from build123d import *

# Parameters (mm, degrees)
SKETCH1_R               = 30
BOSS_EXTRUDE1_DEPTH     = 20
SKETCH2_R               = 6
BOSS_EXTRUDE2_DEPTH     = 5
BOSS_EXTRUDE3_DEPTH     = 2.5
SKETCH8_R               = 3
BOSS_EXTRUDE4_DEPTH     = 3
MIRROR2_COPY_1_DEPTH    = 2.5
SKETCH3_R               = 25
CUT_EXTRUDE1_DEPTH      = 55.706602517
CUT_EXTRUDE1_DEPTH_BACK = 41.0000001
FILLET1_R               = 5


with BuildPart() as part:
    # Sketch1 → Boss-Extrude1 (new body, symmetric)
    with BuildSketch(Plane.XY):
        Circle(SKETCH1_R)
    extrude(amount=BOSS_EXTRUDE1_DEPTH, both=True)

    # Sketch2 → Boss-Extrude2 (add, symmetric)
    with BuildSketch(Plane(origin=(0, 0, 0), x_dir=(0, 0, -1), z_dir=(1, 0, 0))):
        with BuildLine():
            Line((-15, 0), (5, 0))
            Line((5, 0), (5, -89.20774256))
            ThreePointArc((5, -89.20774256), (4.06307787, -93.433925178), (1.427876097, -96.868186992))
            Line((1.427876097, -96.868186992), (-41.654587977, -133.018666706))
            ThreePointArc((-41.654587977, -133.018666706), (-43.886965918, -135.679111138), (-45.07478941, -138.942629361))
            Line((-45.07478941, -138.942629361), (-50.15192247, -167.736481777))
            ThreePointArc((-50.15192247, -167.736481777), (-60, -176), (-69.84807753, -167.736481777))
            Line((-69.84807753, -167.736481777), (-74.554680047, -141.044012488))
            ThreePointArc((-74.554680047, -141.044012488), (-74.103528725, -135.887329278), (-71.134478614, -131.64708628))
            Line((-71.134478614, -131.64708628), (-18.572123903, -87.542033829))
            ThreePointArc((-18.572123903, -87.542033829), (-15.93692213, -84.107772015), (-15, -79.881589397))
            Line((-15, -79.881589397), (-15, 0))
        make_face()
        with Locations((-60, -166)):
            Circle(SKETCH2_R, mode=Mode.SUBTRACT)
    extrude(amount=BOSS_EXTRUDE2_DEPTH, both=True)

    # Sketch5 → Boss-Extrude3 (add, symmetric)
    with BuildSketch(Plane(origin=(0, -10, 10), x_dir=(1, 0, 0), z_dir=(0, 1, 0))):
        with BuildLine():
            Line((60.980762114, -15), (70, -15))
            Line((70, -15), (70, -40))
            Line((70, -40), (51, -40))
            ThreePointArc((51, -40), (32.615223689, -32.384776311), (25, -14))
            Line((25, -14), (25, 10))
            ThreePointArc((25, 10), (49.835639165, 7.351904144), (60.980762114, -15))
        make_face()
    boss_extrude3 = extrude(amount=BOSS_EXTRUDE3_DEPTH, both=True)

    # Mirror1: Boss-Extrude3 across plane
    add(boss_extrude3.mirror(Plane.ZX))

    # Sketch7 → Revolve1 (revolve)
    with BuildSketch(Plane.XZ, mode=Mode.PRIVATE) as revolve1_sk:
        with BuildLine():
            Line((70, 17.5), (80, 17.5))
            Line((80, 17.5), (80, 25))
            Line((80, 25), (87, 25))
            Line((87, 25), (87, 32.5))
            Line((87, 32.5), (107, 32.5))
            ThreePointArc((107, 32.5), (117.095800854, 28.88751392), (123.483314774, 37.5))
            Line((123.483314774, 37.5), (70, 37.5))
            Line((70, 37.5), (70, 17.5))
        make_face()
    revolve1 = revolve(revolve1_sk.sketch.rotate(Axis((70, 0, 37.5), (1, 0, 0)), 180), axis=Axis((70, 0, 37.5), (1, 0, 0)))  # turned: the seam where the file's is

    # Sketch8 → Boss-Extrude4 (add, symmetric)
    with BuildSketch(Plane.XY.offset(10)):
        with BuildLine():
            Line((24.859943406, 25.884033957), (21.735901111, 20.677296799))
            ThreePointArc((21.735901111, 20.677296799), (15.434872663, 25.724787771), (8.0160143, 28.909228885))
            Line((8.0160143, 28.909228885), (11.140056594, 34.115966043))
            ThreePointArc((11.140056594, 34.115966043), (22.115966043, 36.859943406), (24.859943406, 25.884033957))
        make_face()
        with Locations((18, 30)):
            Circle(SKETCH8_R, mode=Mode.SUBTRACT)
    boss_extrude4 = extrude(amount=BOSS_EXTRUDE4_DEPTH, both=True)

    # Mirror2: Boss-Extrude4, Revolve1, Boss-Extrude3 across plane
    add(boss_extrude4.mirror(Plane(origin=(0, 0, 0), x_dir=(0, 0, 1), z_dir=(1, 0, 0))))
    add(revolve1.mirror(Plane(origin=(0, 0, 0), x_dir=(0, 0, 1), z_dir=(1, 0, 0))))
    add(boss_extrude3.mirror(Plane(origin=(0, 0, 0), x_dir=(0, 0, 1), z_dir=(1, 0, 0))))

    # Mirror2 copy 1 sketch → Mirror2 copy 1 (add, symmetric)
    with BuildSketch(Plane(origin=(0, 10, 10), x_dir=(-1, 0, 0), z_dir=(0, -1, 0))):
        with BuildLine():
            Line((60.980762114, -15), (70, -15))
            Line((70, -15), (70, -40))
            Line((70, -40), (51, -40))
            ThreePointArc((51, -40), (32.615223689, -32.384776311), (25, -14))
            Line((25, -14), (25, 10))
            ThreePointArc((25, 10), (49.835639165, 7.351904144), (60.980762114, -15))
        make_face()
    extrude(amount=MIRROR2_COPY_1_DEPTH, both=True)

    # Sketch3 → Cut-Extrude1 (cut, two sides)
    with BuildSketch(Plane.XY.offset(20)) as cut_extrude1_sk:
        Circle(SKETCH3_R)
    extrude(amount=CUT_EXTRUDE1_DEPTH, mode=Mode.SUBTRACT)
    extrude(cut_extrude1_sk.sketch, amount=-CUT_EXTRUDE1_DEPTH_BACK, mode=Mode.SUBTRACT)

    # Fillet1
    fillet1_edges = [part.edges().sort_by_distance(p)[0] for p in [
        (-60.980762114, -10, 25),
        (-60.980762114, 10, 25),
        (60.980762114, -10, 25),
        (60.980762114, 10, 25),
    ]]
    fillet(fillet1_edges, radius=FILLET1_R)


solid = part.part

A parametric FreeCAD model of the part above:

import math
import FreeCAD as App
import Part
import Sketcher
from FreeCAD import Vector
Q = App.Units.Quantity


def edges_at(feature, points):
    """Names of the edges that pass closest to the given points."""
    edges = feature.Shape.Edges
    near = lambda p: min(range(len(edges)), key=lambda i: edges[i].distToShape(Part.Vertex(*p))[0])
    return sorted({f"Edge{near(p) + 1}" for p in points})

doc = App.newDocument("Part")
body = doc.addObject("PartDesign::Body", "Body")

sketch1 = body.newObject("Sketcher::SketchObject", "Sketch")
sketch1.AttachmentSupport = (doc.getObject("XY_Plane"), [""])
sketch1.MapMode = "FlatFace"
sketch1.addGeometry(Part.Circle(Vector(0, 0, 0), Vector(0, 0, 1), 30), False)
sketch1.addConstraint(Sketcher.Constraint("Coincident", 0, 3, -1, 1))
sketch1.addConstraint(Sketcher.Constraint("Diameter", 0, Q("60 mm")))
pad1 = body.newObject("PartDesign::Pad", "Pad")
pad1.Profile = sketch1
pad1.Length = 40
pad1.Midplane = True

sketch2 = body.newObject("Sketcher::SketchObject", "Sketch001")
sketch2.AttachmentSupport = (doc.getObject("YZ_Plane"), [""])
sketch2.MapMode = "FlatFace"
sketch2.addGeometry(Part.LineSegment(Vector(0, -5, 0), Vector(0, 15, 0)), False)
sketch2.addGeometry(Part.LineSegment(Vector(0, 15, 0), Vector(-80, 15, 0)), False)
sketch2.addGeometry(Part.ArcOfCircle(Part.Circle(Vector(-80, 25, 0), Vector(0, 0, 1), 10), math.radians(-140), math.radians(-90)), False)
sketch2.addGeometry(Part.LineSegment(Vector(-88, 19, 0), Vector(-132, 71, 0)), False)
sketch2.addGeometry(Part.ArcOfCircle(Part.Circle(Vector(-139, 65, 0), Vector(0, 0, 1), 10), math.radians(40), math.radians(100)), False)
sketch2.addGeometry(Part.LineSegment(Vector(-141, 75, 0), Vector(-168, 70, 0)), False)
sketch2.addGeometry(Part.ArcOfCircle(Part.Circle(Vector(-166, 60, 0), Vector(0, 0, 1), 10), math.radians(100), math.radians(260)), False)
sketch2.addGeometry(Part.LineSegment(Vector(-168, 50, 0), Vector(-139, 45, 0)), False)
sketch2.addGeometry(Part.ArcOfCircle(Part.Circle(Vector(-141, 35, 0), Vector(0, 0, 1), 10), math.radians(40), math.radians(80)), False)
sketch2.addGeometry(Part.LineSegment(Vector(-133, 42, 0), Vector(-97, -1, 0)), False)
sketch2.addGeometry(Part.ArcOfCircle(Part.Circle(Vector(-89, 5, 0), Vector(0, 0, 1), 10), math.radians(-140), math.radians(-90)), False)
sketch2.addGeometry(Part.LineSegment(Vector(-89, -5, 0), Vector(0, -5, 0)), False)
sketch2.addGeometry(Part.Circle(Vector(-166, 60, 0), Vector(0, 0, 1), 6), False)
sketch2.addConstraint(Sketcher.Constraint("Coincident", 0, 2, 1, 1))
sketch2.addConstraint(Sketcher.Constraint("Tangent", 1, 2, 2, 2))
sketch2.addConstraint(Sketcher.Constraint("Tangent", 2, 1, 3, 1))
sketch2.addConstraint(Sketcher.Constraint("Tangent", 3, 2, 4, 1))
sketch2.addConstraint(Sketcher.Constraint("Tangent", 4, 2, 5, 1))
sketch2.addConstraint(Sketcher.Constraint("Tangent", 5, 2, 6, 1))
sketch2.addConstraint(Sketcher.Constraint("Tangent", 6, 2, 7, 1))
sketch2.addConstraint(Sketcher.Constraint("Tangent", 7, 2, 8, 2))
sketch2.addConstraint(Sketcher.Constraint("Tangent", 8, 1, 9, 1))
sketch2.addConstraint(Sketcher.Constraint("Tangent", 9, 2, 10, 1))
sketch2.addConstraint(Sketcher.Constraint("Tangent", 10, 2, 11, 1))
sketch2.addConstraint(Sketcher.Constraint("Coincident", 11, 2, 0, 1))
sketch2.addConstraint(Sketcher.Constraint("Vertical", 0))
sketch2.addConstraint(Sketcher.Constraint("Horizontal", 1))
sketch2.addConstraint(Sketcher.Constraint("Horizontal", 11))
sketch2.addConstraint(Sketcher.Constraint("Coincident", 12, 3, 6, 3))
sketch2.addConstraint(Sketcher.Constraint("Equal", 2, 4))
sketch2.addConstraint(Sketcher.Constraint("Equal", 4, 6))
sketch2.addConstraint(Sketcher.Constraint("Equal", 6, 8))
sketch2.addConstraint(Sketcher.Constraint("Equal", 8, 10))
sketch2.addConstraint(Sketcher.Constraint("PointOnObject", 0, 2, -2))
sketch2.addConstraint(Sketcher.Constraint("Parallel", 3, 9))
sketch2.addConstraint(Sketcher.Constraint("Vertical", 5, 2, 6, 2))
sketch2.addConstraint(Sketcher.Constraint("Diameter", 12, Q("12 mm")))
sketch2.addConstraint(Sketcher.Constraint("Radius", 2, Q("10 mm")))
sketch2.addConstraint(Sketcher.Constraint("DistanceY", 0, 1, 0, 2, Q("20 mm")))
sketch2.addConstraint(Sketcher.Constraint("Angle", 3, Q("130 deg")))
sketch2.addConstraint(Sketcher.Constraint("Angle", 5, Q("-170 deg")))
sketch2.addConstraint(Sketcher.Constraint("DistanceY", -1, 1, 2, 3, Q("25 mm")))
sketch2.addConstraint(Sketcher.Constraint("DistanceX", 6, 3, -1, 1, Q("166 mm")))
sketch2.addConstraint(Sketcher.Constraint("DistanceY", -1, 1, 6, 3, Q("60 mm")))
sketch2.addConstraint(Sketcher.Constraint("DistanceX", 1, 2, 1, 1, Q("79.881589 mm")))
sketch2.addConstraint(Sketcher.Constraint("DistanceX", 4, 2, 8, 3, Q("0.364901 mm")))
pad2 = body.newObject("PartDesign::Pad", "Pad001")
pad2.Profile = sketch2
pad2.Length = 10
pad2.Midplane = True

sketch3 = body.newObject("Sketcher::SketchObject", "Sketch002")
sketch3.AttachmentSupport = (doc.getObject("XZ_Plane"), [""])
sketch3.MapMode = "FlatFace"
sketch3.AttachmentOffset = App.Placement(Vector(0, 0, 10), App.Rotation())
sketch3.addGeometry(Part.LineSegment(Vector(70, 25, 0), Vector(61, 25, 0)), False)
sketch3.addGeometry(Part.ArcOfCircle(Part.Circle(Vector(35, 24, 0), Vector(0, 0, 1), 26), math.radians(-113), math.radians(2)), False)
sketch3.addGeometry(Part.LineSegment(Vector(25, 0, 0), Vector(25, 24, 0)), False)
sketch3.addGeometry(Part.ArcOfCircle(Part.Circle(Vector(51, 24, 0), Vector(0, 0, 1), 26), math.radians(90), math.radians(180)), False)
sketch3.addGeometry(Part.LineSegment(Vector(51, 50, 0), Vector(70, 50, 0)), False)
sketch3.addGeometry(Part.LineSegment(Vector(70, 50, 0), Vector(70, 25, 0)), False)
sketch3.addConstraint(Sketcher.Constraint("Coincident", 0, 2, 1, 2))
sketch3.addConstraint(Sketcher.Constraint("Coincident", 1, 1, 2, 1))
sketch3.addConstraint(Sketcher.Constraint("Tangent", 2, 2, 3, 2))
sketch3.addConstraint(Sketcher.Constraint("Tangent", 3, 1, 4, 1))
sketch3.addConstraint(Sketcher.Constraint("Coincident", 4, 2, 5, 1))
sketch3.addConstraint(Sketcher.Constraint("Coincident", 5, 2, 0, 1))
sketch3.addConstraint(Sketcher.Constraint("Horizontal", 0))
sketch3.addConstraint(Sketcher.Constraint("Vertical", 2))
sketch3.addConstraint(Sketcher.Constraint("Horizontal", 4))
sketch3.addConstraint(Sketcher.Constraint("Vertical", 5))
sketch3.addConstraint(Sketcher.Constraint("Equal", 1, 3))
sketch3.addConstraint(Sketcher.Constraint("PointOnObject", 1, 1, -1))
sketch3.addConstraint(Sketcher.Constraint("Horizontal", 1, 3, 3, 3))
sketch3.addConstraint(Sketcher.Constraint("Radius", 1, Q("26 mm")))
sketch3.addConstraint(Sketcher.Constraint("DistanceX", 4, 1, 4, 2, Q("19 mm")))
sketch3.addConstraint(Sketcher.Constraint("DistanceY", 2, 1, 2, 2, Q("24 mm")))
sketch3.addConstraint(Sketcher.Constraint("DistanceY", 5, 2, 5, 1, Q("25 mm")))
sketch3.addConstraint(Sketcher.Constraint("DistanceX", -1, 1, 1, 3, Q("35 mm")))
pad3 = body.newObject("PartDesign::Pad", "Pad002")
pad3.Profile = sketch3
pad3.Length = 5
pad3.Midplane = True
doc.recompute()

mirrored = body.newObject("PartDesign::Mirrored", "Mirrored")
mirrored.Originals = [pad3]
mirrored.MirrorPlane = (doc.getObject("XZ_Plane"), [""])
body.Tip = mirrored

sketch4 = body.newObject("Sketcher::SketchObject", "Sketch003")
sketch4.AttachmentSupport = (doc.getObject("XZ_Plane"), [""])
sketch4.MapMode = "FlatFace"
sketch4.addGeometry(Part.LineSegment(Vector(70, 18, 0), Vector(80, 18, 0)), False)
sketch4.addGeometry(Part.LineSegment(Vector(80, 18, 0), Vector(80, 25, 0)), False)
sketch4.addGeometry(Part.LineSegment(Vector(80, 25, 0), Vector(87, 25, 0)), False)
sketch4.addGeometry(Part.LineSegment(Vector(87, 25, 0), Vector(87, 32, 0)), False)
sketch4.addGeometry(Part.LineSegment(Vector(87, 32, 0), Vector(107, 32, 0)), False)
sketch4.addGeometry(Part.ArcOfCircle(Part.Circle(Vector(114, 38, 0), Vector(0, 0, 1), 9), math.radians(-146), math.radians(0)), False)
sketch4.addGeometry(Part.LineSegment(Vector(123, 38, 0), Vector(70, 38, 0)), False)
sketch4.addGeometry(Part.LineSegment(Vector(70, 38, 0), Vector(70, 18, 0)), False)
sketch4.addGeometry(Part.LineSegment(Vector(70, 38, 0), Vector(123, 38, 0)), True)
sketch4.addConstraint(Sketcher.Constraint("Coincident", 0, 2, 1, 1))
sketch4.addConstraint(Sketcher.Constraint("Coincident", 1, 2, 2, 1))
sketch4.addConstraint(Sketcher.Constraint("Coincident", 2, 2, 3, 1))
sketch4.addConstraint(Sketcher.Constraint("Coincident", 3, 2, 4, 1))
sketch4.addConstraint(Sketcher.Constraint("Coincident", 4, 2, 5, 1))
sketch4.addConstraint(Sketcher.Constraint("Coincident", 5, 2, 6, 1))
sketch4.addConstraint(Sketcher.Constraint("Coincident", 6, 2, 7, 1))
sketch4.addConstraint(Sketcher.Constraint("Coincident", 7, 2, 0, 1))
sketch4.addConstraint(Sketcher.Constraint("Horizontal", 0))
sketch4.addConstraint(Sketcher.Constraint("Vertical", 1))
sketch4.addConstraint(Sketcher.Constraint("Horizontal", 2))
sketch4.addConstraint(Sketcher.Constraint("Vertical", 3))
sketch4.addConstraint(Sketcher.Constraint("Horizontal", 4))
sketch4.addConstraint(Sketcher.Constraint("Horizontal", 6))
sketch4.addConstraint(Sketcher.Constraint("Vertical", 7))
sketch4.addConstraint(Sketcher.Constraint("Horizontal", 8))
sketch4.addConstraint(Sketcher.Constraint("Coincident", 8, 1, 6, 2))
sketch4.addConstraint(Sketcher.Constraint("Equal", 6, 8))
sketch4.addConstraint(Sketcher.Constraint("Equal", 1, 3))
sketch4.addConstraint(Sketcher.Constraint("Equal", 4, 7))
sketch4.addConstraint(Sketcher.Constraint("Radius", 5, Q("9 mm")))
sketch4.addConstraint(Sketcher.Constraint("DistanceX", 0, 1, 0, 2, Q("10 mm")))
sketch4.addConstraint(Sketcher.Constraint("DistanceX", 2, 1, 2, 2, Q("7 mm")))
sketch4.addConstraint(Sketcher.Constraint("DistanceX", 4, 1, 4, 2, Q("20 mm")))
sketch4.addConstraint(Sketcher.Constraint("DistanceY", 1, 1, 1, 2, Q("7.5 mm")))
sketch4.addConstraint(Sketcher.Constraint("DistanceX", -1, 1, 0, 2, Q("80 mm")))
sketch4.addConstraint(Sketcher.Constraint("DistanceY", -1, 1, 1, 2, Q("25 mm")))
sketch4.addConstraint(Sketcher.Constraint("DistanceY", 0, 2, 5, 3, Q("20 mm")))
revolution = body.newObject("PartDesign::Revolution", "Revolution")
revolution.Profile = sketch4
revolution.ReferenceAxis = (sketch4, ["Axis0"])
revolution.Angle = 360

sketch5 = body.newObject("Sketcher::SketchObject", "Sketch004")
sketch5.AttachmentSupport = (doc.getObject("XY_Plane"), [""])
sketch5.MapMode = "FlatFace"
sketch5.AttachmentOffset = App.Placement(Vector(0, 0, 10), App.Rotation())
sketch5.addGeometry(Part.LineSegment(Vector(21.7, 20.7, 0), Vector(24.9, 25.9, 0)), False)
sketch5.addGeometry(Part.ArcOfCircle(Part.Circle(Vector(18, 30, 0), Vector(0, 0, 1), 8), math.radians(-31), math.radians(149)), False)
sketch5.addGeometry(Part.LineSegment(Vector(11.1, 34.1, 0), Vector(8, 28.9, 0)), False)
sketch5.addGeometry(Part.ArcOfCircle(Part.Circle(Vector(0, 0, 0), Vector(0, 0, 1), 30), math.radians(44), math.radians(75)), False)
sketch5.addGeometry(Part.Circle(Vector(18, 30, 0), Vector(0, 0, 1), 3), False)
sketch5.addConstraint(Sketcher.Constraint("Tangent", 0, 2, 1, 1))
sketch5.addConstraint(Sketcher.Constraint("Tangent", 1, 2, 2, 1))
sketch5.addConstraint(Sketcher.Constraint("Coincident", 2, 2, 3, 2))
sketch5.addConstraint(Sketcher.Constraint("Coincident", 3, 1, 0, 1))
sketch5.addConstraint(Sketcher.Constraint("Coincident", 3, 3, -1, 1))
sketch5.addConstraint(Sketcher.Constraint("Coincident", 4, 3, 1, 3))
sketch5.addConstraint(Sketcher.Constraint("Parallel", 0, 2))
sketch5.addConstraint(Sketcher.Constraint("Equal", 0, 2))
sketch5.addConstraint(Sketcher.Constraint("Diameter", 4, Q("6 mm")))
sketch5.addConstraint(Sketcher.Constraint("Radius", 1, Q("8 mm")))
sketch5.addConstraint(Sketcher.Constraint("Radius", 3, Q("30 mm")))
sketch5.addConstraint(Sketcher.Constraint("DistanceX", -1, 1, 1, 3, Q("18 mm")))
sketch5.addConstraint(Sketcher.Constraint("DistanceY", -1, 1, 1, 3, Q("30 mm")))
pad4 = body.newObject("PartDesign::Pad", "Pad003")
pad4.Profile = sketch5
pad4.Length = 6
pad4.Midplane = True
doc.recompute()

mirrored2 = body.newObject("PartDesign::Mirrored", "Mirrored001")
mirrored2.Originals = [pad4, revolution, pad3]
mirrored2.MirrorPlane = (doc.getObject("YZ_Plane"), [""])
body.Tip = mirrored2

sketch6 = body.newObject("Sketcher::SketchObject", "Sketch005")
sketch6.AttachmentSupport = (doc.getObject("XZ_Plane"), [""])
sketch6.MapMode = "FlatFace"
sketch6.AttachmentOffset = App.Placement(Vector(0, 0, -10), App.Rotation())
sketch6.addGeometry(Part.LineSegment(Vector(-70, 25, 0), Vector(-61, 25, 0)), False)
sketch6.addGeometry(Part.ArcOfCircle(Part.Circle(Vector(-35, 24, 0), Vector(0, 0, 1), 26), math.radians(178), math.radians(293)), False)
sketch6.addGeometry(Part.LineSegment(Vector(-25, 0, 0), Vector(-25, 24, 0)), False)
sketch6.addGeometry(Part.ArcOfCircle(Part.Circle(Vector(-51, 24, 0), Vector(0, 0, 1), 26), math.radians(0), math.radians(90)), False)
sketch6.addGeometry(Part.LineSegment(Vector(-51, 50, 0), Vector(-70, 50, 0)), False)
sketch6.addGeometry(Part.LineSegment(Vector(-70, 50, 0), Vector(-70, 25, 0)), False)
sketch6.addConstraint(Sketcher.Constraint("Coincident", 0, 2, 1, 1))
sketch6.addConstraint(Sketcher.Constraint("Coincident", 1, 2, 2, 1))
sketch6.addConstraint(Sketcher.Constraint("Tangent", 2, 2, 3, 1))
sketch6.addConstraint(Sketcher.Constraint("Tangent", 3, 2, 4, 1))
sketch6.addConstraint(Sketcher.Constraint("Coincident", 4, 2, 5, 1))
sketch6.addConstraint(Sketcher.Constraint("Coincident", 5, 2, 0, 1))
sketch6.addConstraint(Sketcher.Constraint("Horizontal", 0))
sketch6.addConstraint(Sketcher.Constraint("Vertical", 2))
sketch6.addConstraint(Sketcher.Constraint("Horizontal", 4))
sketch6.addConstraint(Sketcher.Constraint("Vertical", 5))
sketch6.addConstraint(Sketcher.Constraint("Equal", 1, 3))
sketch6.addConstraint(Sketcher.Constraint("PointOnObject", 1, 2, -1))
sketch6.addConstraint(Sketcher.Constraint("Horizontal", 1, 3, 3, 3))
sketch6.addConstraint(Sketcher.Constraint("Radius", 1, Q("26 mm")))
sketch6.addConstraint(Sketcher.Constraint("DistanceX", 4, 2, 4, 1, Q("19 mm")))
sketch6.addConstraint(Sketcher.Constraint("DistanceY", 2, 1, 2, 2, Q("24 mm")))
sketch6.addConstraint(Sketcher.Constraint("DistanceY", 5, 2, 5, 1, Q("25 mm")))
sketch6.addConstraint(Sketcher.Constraint("DistanceX", 1, 3, -1, 1, Q("35 mm")))
pad5 = body.newObject("PartDesign::Pad", "Pad004")
pad5.Profile = sketch6
pad5.Length = 5
pad5.Midplane = True

sketch7 = body.newObject("Sketcher::SketchObject", "Sketch006")
sketch7.AttachmentSupport = (doc.getObject("XY_Plane"), [""])
sketch7.MapMode = "FlatFace"
sketch7.AttachmentOffset = App.Placement(Vector(0, 0, 20), App.Rotation())
sketch7.addGeometry(Part.Circle(Vector(0, 0, 0), Vector(0, 0, 1), 25), False)
sketch7.addConstraint(Sketcher.Constraint("Coincident", 0, 3, -1, 1))
sketch7.addConstraint(Sketcher.Constraint("Diameter", 0, Q("50 mm")))
pocket1 = body.newObject("PartDesign::Pocket", "Pocket")
pocket1.Profile = sketch7
pocket1.Type = "ThroughAll"
pocket1.Midplane = True
doc.recompute()

fillet = body.newObject("PartDesign::Fillet", "Fillet")
fillet.Base = (pocket1, edges_at(pocket1, [
    (-60.981, -10, 25),
    (-60.981, 10, 25),
    (60.981, -10, 25),
    (60.981, 10, 25),
]))
fillet.Radius = 5

doc.recompute()
